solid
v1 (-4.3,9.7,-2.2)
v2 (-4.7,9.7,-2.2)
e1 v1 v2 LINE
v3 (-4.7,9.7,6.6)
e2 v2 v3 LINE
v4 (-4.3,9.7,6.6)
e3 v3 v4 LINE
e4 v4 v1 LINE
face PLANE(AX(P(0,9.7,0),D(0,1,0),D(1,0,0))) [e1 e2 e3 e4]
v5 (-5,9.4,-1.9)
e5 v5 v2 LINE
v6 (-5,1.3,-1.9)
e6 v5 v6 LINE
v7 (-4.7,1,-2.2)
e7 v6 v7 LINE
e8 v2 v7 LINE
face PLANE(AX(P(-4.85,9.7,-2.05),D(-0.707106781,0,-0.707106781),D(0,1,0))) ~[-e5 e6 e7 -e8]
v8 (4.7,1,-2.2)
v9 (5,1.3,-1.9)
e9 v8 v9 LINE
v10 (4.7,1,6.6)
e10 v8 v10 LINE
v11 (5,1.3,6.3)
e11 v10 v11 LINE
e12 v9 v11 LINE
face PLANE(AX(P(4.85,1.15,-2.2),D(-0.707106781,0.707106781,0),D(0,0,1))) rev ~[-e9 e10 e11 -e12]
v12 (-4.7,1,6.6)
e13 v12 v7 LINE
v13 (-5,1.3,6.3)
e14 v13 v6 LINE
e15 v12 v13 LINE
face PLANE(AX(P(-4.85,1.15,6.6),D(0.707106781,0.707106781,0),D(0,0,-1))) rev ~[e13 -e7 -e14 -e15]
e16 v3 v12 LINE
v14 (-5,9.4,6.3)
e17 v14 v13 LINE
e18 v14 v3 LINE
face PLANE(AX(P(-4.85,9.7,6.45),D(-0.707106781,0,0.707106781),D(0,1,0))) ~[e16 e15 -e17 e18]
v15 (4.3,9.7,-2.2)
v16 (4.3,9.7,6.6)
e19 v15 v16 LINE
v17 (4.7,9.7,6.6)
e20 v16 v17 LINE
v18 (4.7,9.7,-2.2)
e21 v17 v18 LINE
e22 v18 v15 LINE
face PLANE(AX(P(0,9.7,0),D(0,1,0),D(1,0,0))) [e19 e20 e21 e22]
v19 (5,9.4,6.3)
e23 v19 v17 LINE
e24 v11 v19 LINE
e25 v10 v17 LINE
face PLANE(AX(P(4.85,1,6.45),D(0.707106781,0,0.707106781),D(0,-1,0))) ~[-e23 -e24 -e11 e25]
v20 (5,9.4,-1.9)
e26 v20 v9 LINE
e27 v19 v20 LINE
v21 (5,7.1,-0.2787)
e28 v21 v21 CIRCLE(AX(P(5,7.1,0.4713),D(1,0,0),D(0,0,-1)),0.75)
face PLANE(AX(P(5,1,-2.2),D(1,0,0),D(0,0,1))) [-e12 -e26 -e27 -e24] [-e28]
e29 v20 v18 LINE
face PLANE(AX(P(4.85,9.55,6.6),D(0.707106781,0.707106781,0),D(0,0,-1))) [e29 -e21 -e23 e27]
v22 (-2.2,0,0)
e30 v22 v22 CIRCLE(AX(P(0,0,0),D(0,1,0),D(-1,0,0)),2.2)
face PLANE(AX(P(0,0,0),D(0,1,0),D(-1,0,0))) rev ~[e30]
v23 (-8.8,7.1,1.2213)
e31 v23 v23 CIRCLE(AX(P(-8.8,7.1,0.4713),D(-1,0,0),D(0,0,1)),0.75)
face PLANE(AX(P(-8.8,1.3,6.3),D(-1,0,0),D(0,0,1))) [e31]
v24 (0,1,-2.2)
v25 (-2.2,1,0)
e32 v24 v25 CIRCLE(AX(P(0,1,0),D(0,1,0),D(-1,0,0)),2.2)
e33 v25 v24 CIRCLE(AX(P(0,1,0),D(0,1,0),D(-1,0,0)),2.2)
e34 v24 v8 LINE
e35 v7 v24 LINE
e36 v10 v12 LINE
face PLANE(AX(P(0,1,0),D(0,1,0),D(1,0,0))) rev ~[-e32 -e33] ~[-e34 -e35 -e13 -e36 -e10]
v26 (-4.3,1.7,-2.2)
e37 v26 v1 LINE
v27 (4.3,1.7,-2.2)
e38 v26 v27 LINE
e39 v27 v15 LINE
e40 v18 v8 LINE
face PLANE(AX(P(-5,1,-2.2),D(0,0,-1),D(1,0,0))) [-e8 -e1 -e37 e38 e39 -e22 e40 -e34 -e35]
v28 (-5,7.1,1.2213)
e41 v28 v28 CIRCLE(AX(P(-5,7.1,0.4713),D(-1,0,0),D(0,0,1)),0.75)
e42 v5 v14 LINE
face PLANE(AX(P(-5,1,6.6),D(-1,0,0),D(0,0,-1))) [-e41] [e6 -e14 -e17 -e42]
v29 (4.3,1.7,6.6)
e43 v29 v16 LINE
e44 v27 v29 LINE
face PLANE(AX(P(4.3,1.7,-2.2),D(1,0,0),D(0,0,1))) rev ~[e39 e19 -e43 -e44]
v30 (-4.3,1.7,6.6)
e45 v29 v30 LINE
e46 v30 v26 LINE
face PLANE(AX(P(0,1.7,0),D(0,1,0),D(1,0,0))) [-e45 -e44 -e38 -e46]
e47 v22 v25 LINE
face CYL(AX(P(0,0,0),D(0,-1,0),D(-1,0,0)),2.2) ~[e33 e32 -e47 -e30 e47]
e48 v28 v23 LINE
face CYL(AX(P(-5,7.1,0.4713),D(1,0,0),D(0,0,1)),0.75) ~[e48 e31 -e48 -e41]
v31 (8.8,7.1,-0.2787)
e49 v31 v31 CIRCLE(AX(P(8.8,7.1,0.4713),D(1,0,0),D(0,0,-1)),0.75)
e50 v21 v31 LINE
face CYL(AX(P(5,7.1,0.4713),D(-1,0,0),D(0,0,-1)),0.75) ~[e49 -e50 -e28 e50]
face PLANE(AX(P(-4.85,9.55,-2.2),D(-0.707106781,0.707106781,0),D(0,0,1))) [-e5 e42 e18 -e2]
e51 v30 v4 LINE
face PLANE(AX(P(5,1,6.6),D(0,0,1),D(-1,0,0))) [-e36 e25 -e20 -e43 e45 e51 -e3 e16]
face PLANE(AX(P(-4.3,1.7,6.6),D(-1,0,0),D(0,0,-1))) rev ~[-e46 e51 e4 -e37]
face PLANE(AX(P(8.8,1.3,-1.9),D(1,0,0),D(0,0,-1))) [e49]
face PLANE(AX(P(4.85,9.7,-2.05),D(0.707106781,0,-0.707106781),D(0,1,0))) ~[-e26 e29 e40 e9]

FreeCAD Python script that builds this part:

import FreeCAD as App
import Part
import Sketcher

V = App.Vector
Q = App.Units.Quantity


def edges_at(feature, points):
    """Names of the edges that pass closest to the given points."""
    edges = feature.Shape.Edges
    near = lambda p: min(range(len(edges)), key=lambda i: edges[i].distToShape(Part.Vertex(*p))[0])
    return sorted({f"Edge{near(p) + 1}" for p in points})

doc = App.newDocument("Part")
body = doc.addObject("PartDesign::Body", "Body")

sketch1 = doc.addObject("Sketcher::SketchObject", "Sketch")
body.addObject(sketch1)
sketch1.AttachmentSupport = (doc.XZ_Plane, [""])
sketch1.MapMode = "FlatFace"
sketch1.addGeometry(Part.Circle(V(0, 0, 0), V(0, 0, 1), 2.2), False)
sketch1.addConstraint([
    Sketcher.Constraint("Coincident", 0, 3, -1, 1),
    Sketcher.Constraint("Diameter", 0, Q("4.4 mm")),
])
pad1 = doc.addObject("PartDesign::Pad", "Pad")
body.addObject(pad1)
pad1.Profile = sketch1
pad1.Length = 1
pad1.Reversed = True

sketch2 = doc.addObject("Sketcher::SketchObject", "Sketch001")
body.addObject(sketch2)
sketch2.AttachmentSupport = (doc.XZ_Plane, [""])
sketch2.MapMode = "FlatFace"
sketch2.AttachmentOffset = App.Placement(V(0, 0, -1), App.Rotation())
sketch2.addGeometry([
    Part.LineSegment(V(-5, 7, 0), V(5, 7, 0)),
    Part.LineSegment(V(5, 7, 0), V(5, -2, 0)),
    Part.LineSegment(V(5, -2, 0), V(-5, -2, 0)),
    Part.LineSegment(V(-5, -2, 0), V(-5, 7, 0)),
], False)
sketch2.addConstraint([
    Sketcher.Constraint("Coincident", 0, 2, 1, 1),
    Sketcher.Constraint("Coincident", 1, 2, 2, 1),
    Sketcher.Constraint("Coincident", 2, 2, 3, 1),
    Sketcher.Constraint("Coincident", 3, 2, 0, 1),
    Sketcher.Constraint("Horizontal", 0),
    Sketcher.Constraint("Vertical", 1),
    Sketcher.Constraint("Horizontal", 2),
    Sketcher.Constraint("Vertical", 3),
    Sketcher.Constraint("DistanceX", 0, 1, 0, 2, Q("10 mm")),
    Sketcher.Constraint("DistanceY", 1, 2, 1, 1, Q("8.8 mm")),
    Sketcher.Constraint("DistanceX", -1, 1, 0, 2, Q("5 mm")),
    Sketcher.Constraint("DistanceY", -1, 1, 0, 2, Q("6.6 mm")),
])
pad2 = doc.addObject("PartDesign::Pad", "Pad001")
body.addObject(pad2)
pad2.Profile = sketch2
pad2.Length = 0.7
pad2.Reversed = True

sketch3 = doc.addObject("Sketcher::SketchObject", "Sketch002")
body.addObject(sketch3)
sketch3.AttachmentSupport = (doc.XZ_Plane, [""])
sketch3.MapMode = "FlatFace"
sketch3.AttachmentOffset = App.Placement(V(0, 0, -1.7), App.Rotation())
sketch3.addGeometry([
    Part.LineSegment(V(-5, -2.2, 0), V(-5, 6.6, 0)),
    Part.LineSegment(V(-5, 6.6, 0), V(-4.3, 6.6, 0)),
    Part.LineSegment(V(-4.3, 6.6, 0), V(-4.3, -2.2, 0)),
    Part.LineSegment(V(-4.3, -2.2, 0), V(-5, -2.2, 0)),
    Part.LineSegment(V(4.3, -2.2, 0), V(4.3, 6.6, 0)),
    Part.LineSegment(V(4.3, 6.6, 0), V(5, 6.6, 0)),
    Part.LineSegment(V(5, 6.6, 0), V(5, -2.2, 0)),
    Part.LineSegment(V(5, -2.2, 0), V(4.3, -2.2, 0)),
], False)
sketch3.addConstraint([
    Sketcher.Constraint("Coincident", 0, 2, 1, 1),
    Sketcher.Constraint("Coincident", 1, 2, 2, 1),
    Sketcher.Constraint("Coincident", 2, 2, 3, 1),
    Sketcher.Constraint("Coincident", 3, 2, 0, 1),
    Sketcher.Constraint("Coincident", 4, 2, 5, 1),
    Sketcher.Constraint("Coincident", 5, 2, 6, 1),
    Sketcher.Constraint("Coincident", 6, 2, 7, 1),
    Sketcher.Constraint("Coincident", 7, 2, 4, 1),
    Sketcher.Constraint("Vertical", 0),
    Sketcher.Constraint("Horizontal", 1),
    Sketcher.Constraint("Vertical", 2),
    Sketcher.Constraint("Horizontal", 3),
    Sketcher.Constraint("Vertical", 4),
    Sketcher.Constraint("Horizontal", 5),
    Sketcher.Constraint("Vertical", 6),
    Sketcher.Constraint("Horizontal", 7),
    Sketcher.Constraint("Symmetric", 1, 2, 4, 2, -2),
    Sketcher.Constraint("Symmetric", 3, 2, 6, 2, -2),
    Sketcher.Constraint("DistanceX", 1, 1, 1, 2, Q("0.7 mm")),
    Sketcher.Constraint("DistanceY", 0, 1, 0, 2, Q("8.8 mm")),
    Sketcher.Constraint("DistanceX", 0, 2, -1, 1, Q("5 mm")),
    Sketcher.Constraint("DistanceY", -1, 1, 0, 2, Q("6.6 mm")),
])
pad3 = doc.addObject("PartDesign::Pad", "Pad002")
body.addObject(pad3)
pad3.Profile = sketch3
pad3.Length = 8
pad3.Reversed = True
doc.recompute()

chamfer = doc.addObject("PartDesign::Chamfer", "Chamfer")
body.addObject(chamfer)
chamfer.Base = (pad3, edges_at(pad3, [
    (-5, 9.7, 2.2),
    (-5, 5.35, -2.2),
    (-5, 5.35, 6.6),
    (5, 9.7, 2.2),
    (5, 5.35, -2.2),
    (5, 5.35, 6.6),
    (5, 1, 2.2),
    (-5, 1, 2.2),
]))
chamfer.Size = 0.3

sketch4 = doc.addObject("Sketcher::SketchObject", "Sketch003")
body.addObject(sketch4)
sketch4.AttachmentSupport = (doc.YZ_Plane, [""])
sketch4.MapMode = "FlatFace"
sketch4.AttachmentOffset = App.Placement(V(0, 0, -5), App.Rotation())
sketch4.addGeometry(Part.Circle(V(7.1, 0.5, 0), V(0, 0, 1), 0.8), False)
sketch4.addConstraint([
    Sketcher.Constraint("Diameter", 0, Q("1.5 mm")),
    Sketcher.Constraint("DistanceX", -1, 1, 0, 3, Q("7.1 mm")),
    Sketcher.Constraint("DistanceY", -1, 1, 0, 3, Q("0.4713 mm")),
])
pad4 = doc.addObject("PartDesign::Pad", "Pad003")
body.addObject(pad4)
pad4.Profile = sketch4
pad4.Length = 3.8
pad4.Reversed = True

sketch5 = doc.addObject("Sketcher::SketchObject", "Sketch004")
body.addObject(sketch5)
sketch5.AttachmentSupport = (doc.YZ_Plane, [""])
sketch5.MapMode = "FlatFace"
sketch5.AttachmentOffset = App.Placement(V(0, 0, 5), App.Rotation())
sketch5.addGeometry(Part.Circle(V(7.1, 0.5, 0), V(0, 0, 1), 0.8), False)
sketch5.addConstraint([
    Sketcher.Constraint("Diameter", 0, Q("1.5 mm")),
    Sketcher.Constraint("DistanceX", -1, 1, 0, 3, Q("7.1 mm")),
    Sketcher.Constraint("DistanceY", -1, 1, 0, 3, Q("0.4713 mm")),
])
pad5 = doc.addObject("PartDesign::Pad", "Pad004")
body.addObject(pad5)
pad5.Profile = sketch5
pad5.Length = 3.8

doc.recompute()
